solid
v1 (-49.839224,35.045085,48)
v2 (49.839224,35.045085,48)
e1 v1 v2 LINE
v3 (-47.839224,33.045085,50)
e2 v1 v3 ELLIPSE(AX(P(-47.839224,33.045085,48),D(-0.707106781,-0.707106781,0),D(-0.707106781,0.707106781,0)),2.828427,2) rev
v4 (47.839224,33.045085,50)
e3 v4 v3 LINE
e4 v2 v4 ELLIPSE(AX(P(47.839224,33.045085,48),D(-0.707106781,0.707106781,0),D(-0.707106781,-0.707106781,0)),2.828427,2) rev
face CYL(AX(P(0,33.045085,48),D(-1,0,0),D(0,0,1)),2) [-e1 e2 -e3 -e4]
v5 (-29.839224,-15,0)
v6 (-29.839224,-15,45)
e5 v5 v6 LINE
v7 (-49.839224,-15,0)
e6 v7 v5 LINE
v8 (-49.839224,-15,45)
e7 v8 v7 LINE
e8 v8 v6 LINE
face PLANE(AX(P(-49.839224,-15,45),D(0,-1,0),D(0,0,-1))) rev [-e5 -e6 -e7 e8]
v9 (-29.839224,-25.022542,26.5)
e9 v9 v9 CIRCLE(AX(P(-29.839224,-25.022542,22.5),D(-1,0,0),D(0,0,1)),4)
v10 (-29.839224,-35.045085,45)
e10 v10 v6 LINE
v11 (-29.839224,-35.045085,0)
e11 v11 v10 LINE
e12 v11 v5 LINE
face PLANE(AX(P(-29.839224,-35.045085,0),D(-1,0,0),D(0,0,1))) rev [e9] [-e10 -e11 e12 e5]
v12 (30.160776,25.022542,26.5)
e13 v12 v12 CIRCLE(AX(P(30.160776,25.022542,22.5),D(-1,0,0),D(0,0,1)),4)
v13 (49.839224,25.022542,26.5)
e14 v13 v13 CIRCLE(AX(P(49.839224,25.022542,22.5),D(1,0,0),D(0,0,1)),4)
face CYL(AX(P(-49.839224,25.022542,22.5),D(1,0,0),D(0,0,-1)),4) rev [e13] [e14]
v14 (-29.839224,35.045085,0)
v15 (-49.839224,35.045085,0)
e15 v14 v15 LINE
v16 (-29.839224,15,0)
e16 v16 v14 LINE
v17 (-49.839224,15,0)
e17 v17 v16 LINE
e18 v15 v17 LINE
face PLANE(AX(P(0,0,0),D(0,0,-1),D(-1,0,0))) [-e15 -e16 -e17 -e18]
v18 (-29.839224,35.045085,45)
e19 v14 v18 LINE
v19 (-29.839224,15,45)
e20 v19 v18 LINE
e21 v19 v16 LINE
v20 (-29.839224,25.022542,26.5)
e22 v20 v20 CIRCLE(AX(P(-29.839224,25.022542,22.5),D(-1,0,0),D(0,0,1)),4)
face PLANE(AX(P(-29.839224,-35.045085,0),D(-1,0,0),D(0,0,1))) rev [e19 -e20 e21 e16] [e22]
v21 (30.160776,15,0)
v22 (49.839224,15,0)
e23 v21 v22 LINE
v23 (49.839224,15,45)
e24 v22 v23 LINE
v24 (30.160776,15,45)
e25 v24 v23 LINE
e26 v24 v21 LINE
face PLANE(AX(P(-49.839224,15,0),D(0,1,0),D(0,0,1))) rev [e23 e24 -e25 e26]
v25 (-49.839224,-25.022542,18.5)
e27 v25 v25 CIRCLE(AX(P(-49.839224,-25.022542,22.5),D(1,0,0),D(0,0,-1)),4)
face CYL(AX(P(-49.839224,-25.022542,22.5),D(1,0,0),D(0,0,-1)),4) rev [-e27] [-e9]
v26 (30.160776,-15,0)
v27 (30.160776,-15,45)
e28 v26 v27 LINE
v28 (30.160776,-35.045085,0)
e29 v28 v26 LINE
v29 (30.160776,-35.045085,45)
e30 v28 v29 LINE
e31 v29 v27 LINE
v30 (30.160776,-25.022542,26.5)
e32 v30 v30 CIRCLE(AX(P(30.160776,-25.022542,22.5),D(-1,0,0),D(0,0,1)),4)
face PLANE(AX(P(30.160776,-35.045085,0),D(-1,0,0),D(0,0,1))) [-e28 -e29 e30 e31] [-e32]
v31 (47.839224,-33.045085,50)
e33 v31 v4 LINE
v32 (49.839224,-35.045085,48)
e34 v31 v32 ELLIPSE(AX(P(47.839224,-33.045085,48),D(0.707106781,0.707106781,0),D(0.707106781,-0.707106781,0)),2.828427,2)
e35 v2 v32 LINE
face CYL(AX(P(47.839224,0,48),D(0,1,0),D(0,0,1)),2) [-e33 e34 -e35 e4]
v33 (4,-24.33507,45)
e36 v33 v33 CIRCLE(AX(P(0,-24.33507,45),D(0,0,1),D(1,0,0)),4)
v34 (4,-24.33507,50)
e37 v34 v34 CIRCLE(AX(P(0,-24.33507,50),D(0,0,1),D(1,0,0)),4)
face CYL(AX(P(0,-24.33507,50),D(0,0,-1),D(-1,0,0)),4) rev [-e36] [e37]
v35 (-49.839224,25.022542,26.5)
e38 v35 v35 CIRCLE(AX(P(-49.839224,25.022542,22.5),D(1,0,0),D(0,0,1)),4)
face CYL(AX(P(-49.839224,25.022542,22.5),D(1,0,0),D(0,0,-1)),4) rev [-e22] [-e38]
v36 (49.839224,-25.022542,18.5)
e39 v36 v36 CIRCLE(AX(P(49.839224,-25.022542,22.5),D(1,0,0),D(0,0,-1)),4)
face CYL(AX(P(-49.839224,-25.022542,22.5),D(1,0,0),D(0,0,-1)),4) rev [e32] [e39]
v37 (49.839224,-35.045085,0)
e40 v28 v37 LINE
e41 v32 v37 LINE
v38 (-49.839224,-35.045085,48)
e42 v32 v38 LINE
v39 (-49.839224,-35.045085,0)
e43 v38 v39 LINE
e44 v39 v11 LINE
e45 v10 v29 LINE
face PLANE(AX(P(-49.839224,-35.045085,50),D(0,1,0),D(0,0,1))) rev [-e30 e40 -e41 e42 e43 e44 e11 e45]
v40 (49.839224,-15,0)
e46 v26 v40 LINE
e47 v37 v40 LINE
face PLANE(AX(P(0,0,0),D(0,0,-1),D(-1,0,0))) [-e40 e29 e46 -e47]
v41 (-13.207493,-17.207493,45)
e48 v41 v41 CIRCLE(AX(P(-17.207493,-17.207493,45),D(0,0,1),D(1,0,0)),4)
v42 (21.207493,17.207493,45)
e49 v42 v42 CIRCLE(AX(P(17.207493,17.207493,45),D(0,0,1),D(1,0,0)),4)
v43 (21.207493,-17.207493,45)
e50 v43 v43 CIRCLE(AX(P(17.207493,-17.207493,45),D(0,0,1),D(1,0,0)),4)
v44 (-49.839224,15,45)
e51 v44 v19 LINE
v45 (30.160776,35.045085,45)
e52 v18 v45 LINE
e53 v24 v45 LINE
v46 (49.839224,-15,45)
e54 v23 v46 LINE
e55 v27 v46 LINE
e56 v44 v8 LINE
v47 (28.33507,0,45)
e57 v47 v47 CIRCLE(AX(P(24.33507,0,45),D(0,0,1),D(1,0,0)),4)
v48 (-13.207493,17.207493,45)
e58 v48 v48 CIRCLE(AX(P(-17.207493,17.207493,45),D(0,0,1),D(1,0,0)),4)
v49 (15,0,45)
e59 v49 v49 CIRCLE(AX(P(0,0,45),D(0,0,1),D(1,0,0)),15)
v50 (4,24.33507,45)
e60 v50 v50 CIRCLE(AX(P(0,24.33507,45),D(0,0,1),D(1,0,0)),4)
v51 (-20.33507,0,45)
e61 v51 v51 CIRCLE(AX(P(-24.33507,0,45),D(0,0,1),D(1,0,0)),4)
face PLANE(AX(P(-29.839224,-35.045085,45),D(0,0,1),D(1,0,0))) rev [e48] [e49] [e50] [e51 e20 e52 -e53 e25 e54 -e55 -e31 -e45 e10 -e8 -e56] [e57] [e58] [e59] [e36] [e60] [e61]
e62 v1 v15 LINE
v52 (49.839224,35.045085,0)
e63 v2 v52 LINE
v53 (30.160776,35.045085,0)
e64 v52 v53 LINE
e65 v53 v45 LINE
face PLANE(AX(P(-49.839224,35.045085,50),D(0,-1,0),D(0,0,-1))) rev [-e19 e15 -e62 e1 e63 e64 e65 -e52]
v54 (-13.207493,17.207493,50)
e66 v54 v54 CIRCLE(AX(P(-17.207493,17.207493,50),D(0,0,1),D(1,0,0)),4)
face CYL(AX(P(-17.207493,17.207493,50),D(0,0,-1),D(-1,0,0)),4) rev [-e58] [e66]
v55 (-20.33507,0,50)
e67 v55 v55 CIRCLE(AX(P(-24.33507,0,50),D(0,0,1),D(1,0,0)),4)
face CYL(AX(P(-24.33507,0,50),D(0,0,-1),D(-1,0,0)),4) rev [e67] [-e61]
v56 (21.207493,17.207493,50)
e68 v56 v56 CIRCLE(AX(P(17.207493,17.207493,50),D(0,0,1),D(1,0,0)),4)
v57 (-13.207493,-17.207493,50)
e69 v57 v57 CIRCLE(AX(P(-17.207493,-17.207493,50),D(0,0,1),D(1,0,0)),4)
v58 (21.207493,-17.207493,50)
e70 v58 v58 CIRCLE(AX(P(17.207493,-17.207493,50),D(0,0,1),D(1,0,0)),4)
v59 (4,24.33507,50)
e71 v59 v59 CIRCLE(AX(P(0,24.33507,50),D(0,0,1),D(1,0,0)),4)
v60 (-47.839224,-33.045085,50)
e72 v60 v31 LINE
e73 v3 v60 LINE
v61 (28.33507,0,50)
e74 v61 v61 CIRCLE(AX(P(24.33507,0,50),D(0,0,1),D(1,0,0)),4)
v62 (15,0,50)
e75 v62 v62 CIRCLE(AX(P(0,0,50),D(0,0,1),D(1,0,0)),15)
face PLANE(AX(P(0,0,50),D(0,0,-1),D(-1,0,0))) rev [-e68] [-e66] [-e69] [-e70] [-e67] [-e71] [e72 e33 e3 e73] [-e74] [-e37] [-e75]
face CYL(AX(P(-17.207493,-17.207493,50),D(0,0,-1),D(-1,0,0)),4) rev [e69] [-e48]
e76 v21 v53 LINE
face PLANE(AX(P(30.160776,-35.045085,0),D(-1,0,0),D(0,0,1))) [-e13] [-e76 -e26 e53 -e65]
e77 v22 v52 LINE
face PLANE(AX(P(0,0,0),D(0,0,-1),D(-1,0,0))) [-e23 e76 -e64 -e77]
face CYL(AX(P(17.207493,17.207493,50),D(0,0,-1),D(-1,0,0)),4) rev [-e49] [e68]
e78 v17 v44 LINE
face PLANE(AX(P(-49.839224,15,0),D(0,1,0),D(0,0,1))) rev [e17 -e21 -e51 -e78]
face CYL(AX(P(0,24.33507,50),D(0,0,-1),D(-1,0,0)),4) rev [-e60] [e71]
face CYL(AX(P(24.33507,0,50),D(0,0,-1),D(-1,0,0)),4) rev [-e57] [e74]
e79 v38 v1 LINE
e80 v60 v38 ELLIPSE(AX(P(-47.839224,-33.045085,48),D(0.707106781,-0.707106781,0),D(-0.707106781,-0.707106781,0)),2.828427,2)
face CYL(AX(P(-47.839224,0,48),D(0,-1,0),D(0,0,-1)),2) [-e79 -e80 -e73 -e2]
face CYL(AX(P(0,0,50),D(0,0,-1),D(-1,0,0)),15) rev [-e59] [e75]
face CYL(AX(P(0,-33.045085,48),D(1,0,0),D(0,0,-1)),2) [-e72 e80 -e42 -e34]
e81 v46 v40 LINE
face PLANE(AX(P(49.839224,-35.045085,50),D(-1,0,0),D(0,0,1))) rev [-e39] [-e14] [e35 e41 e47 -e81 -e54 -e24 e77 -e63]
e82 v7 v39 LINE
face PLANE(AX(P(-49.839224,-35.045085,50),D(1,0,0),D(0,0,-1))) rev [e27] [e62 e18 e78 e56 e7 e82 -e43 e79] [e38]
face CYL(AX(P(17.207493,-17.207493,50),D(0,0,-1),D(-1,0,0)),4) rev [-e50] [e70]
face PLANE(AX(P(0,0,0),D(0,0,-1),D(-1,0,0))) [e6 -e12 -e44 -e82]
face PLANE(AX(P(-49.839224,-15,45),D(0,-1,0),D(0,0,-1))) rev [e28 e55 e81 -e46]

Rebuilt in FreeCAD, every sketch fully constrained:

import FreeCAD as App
import Part
import Sketcher

V = App.Vector


def edges_at(feature, points):
    """Names of the edges that pass closest to the given points."""
    edges = feature.Shape.Edges
    near = lambda p: min(range(len(edges)), key=lambda i: edges[i].distToShape(Part.Vertex(*p))[0])
    return sorted({f"Edge{near(p) + 1}" for p in points})

doc = App.newDocument("Part")
body = doc.addObject("PartDesign::Body", "Body")

sketch1 = doc.addObject("Sketcher::SketchObject", "Sketch")
body.addObject(sketch1)
sketch1.AttachmentSupport = (doc.XY_Plane, [""])
sketch1.MapMode = "FlatFace"
sketch1.addGeometry([
    Part.LineSegment(V(-49.8, 35, 0), V(-49.8, -35, 0)),
    Part.LineSegment(V(-49.8, -35, 0), V(49.8, -35, 0)),
    Part.LineSegment(V(49.8, -35, 0), V(49.8, 35, 0)),
    Part.LineSegment(V(49.8, 35, 0), V(-49.8, 35, 0)),
    Part.Circle(V(-17.2, -17.2, 0), V(0, 0, 1), 4),
    Part.Circle(V(0, -24.3, 0), V(0, 0, 1), 4),
    Part.Circle(V(17.2, -17.2, 0), V(0, 0, 1), 4),
    Part.Circle(V(-24.3, 0, 0), V(0, 0, 1), 4),
    Part.Circle(V(-17.2, 17.2, 0), V(0, 0, 1), 4),
    Part.Circle(V(0, 0, 0), V(0, 0, 1), 15),
    Part.Circle(V(24.3, 0, 0), V(0, 0, 1), 4),
    Part.Circle(V(0, 24.3, 0), V(0, 0, 1), 4),
    Part.Circle(V(17.2, 17.2, 0), V(0, 0, 1), 4),
], False)
sketch1.addConstraint([
    Sketcher.Constraint("Coincident", 0, 2, 1, 1),
    Sketcher.Constraint("Coincident", 1, 2, 2, 1),
    Sketcher.Constraint("Coincident", 2, 2, 3, 1),
    Sketcher.Constraint("Coincident", 3, 2, 0, 1),
    Sketcher.Constraint("Vertical", 0),
    Sketcher.Constraint("Horizontal", 1),
    Sketcher.Constraint("Vertical", 2),
    Sketcher.Constraint("Horizontal", 3),
    Sketcher.Constraint("Coincident", 9, 3, -1, 1),
    Sketcher.Constraint("Equal", 4, 5),
    Sketcher.Constraint("Equal", 5, 6),
    Sketcher.Constraint("Equal", 6, 7),
    Sketcher.Constraint("Equal", 7, 8),
    Sketcher.Constraint("Equal", 8, 10),
    Sketcher.Constraint("Equal", 10, 11),
    Sketcher.Constraint("Equal", 11, 12),
    Sketcher.Constraint("Symmetric", 6, 3, 8, 3, -1, 1),
    Sketcher.Constraint("Symmetric", 7, 3, 10, 3, -1, 1),
    Sketcher.Constraint("Symmetric", 5, 3, 11, 3, -1, 1),
    Sketcher.Constraint("Symmetric", 4, 3, 12, 3, -1, 1),
    Sketcher.Constraint("Symmetric", 0, 2, 2, 2, -1, 1),
    Sketcher.Constraint("Symmetric", 4, 3, 6, 3, -2),
    Sketcher.Constraint("PointOnObject", 5, 3, -2),
    Sketcher.Constraint("PointOnObject", 7, 3, -1),
    Sketcher.Constraint("Diameter", 4, 8.0),
    Sketcher.Constraint("Diameter", 9, 30.0),
    Sketcher.Constraint("DistanceX", 1, 1, 1, 2, 99.678449),
    Sketcher.Constraint("DistanceY", 0, 2, 0, 1, 70.090169),
    Sketcher.Constraint("DistanceY", 5, 3, -1, 1, 24.33507),
    Sketcher.Constraint("DistanceX", 7, 3, -1, 1, 24.33507),
    Sketcher.Constraint("DistanceX", 0, 2, 4, 3, 32.631731),
    Sketcher.Constraint("DistanceY", 0, 2, 4, 3, 17.837591),
])
pad1 = doc.addObject("PartDesign::Pad", "Pad")
body.addObject(pad1)
pad1.Profile = sketch1
pad1.Length = 50

sketch2 = doc.addObject("Sketcher::SketchObject", "Sketch001")
body.addObject(sketch2)
sketch2.AttachmentSupport = (doc.XZ_Plane, [""])
sketch2.MapMode = "FlatFace"
sketch2.addGeometry([
    Part.LineSegment(V(-30, 0, 0), V(-30, 45, 0)),
    Part.LineSegment(V(-30, 45, 0), V(30, 45, 0)),
    Part.LineSegment(V(30, 45, 0), V(30, 0, 0)),
    Part.LineSegment(V(30, 0, 0), V(-30, 0, 0)),
], False)
sketch2.addConstraint([
    Sketcher.Constraint("Coincident", 0, 2, 1, 1),
    Sketcher.Constraint("Coincident", 1, 2, 2, 1),
    Sketcher.Constraint("Coincident", 2, 2, 3, 1),
    Sketcher.Constraint("Coincident", 3, 2, 0, 1),
    Sketcher.Constraint("Vertical", 0),
    Sketcher.Constraint("Horizontal", 1),
    Sketcher.Constraint("Vertical", 2),
    Sketcher.Constraint("Horizontal", 3),
    Sketcher.Constraint("PointOnObject", 2, 2, -1),
    Sketcher.Constraint("DistanceX", 1, 1, 1, 2, 60.0),
    Sketcher.Constraint("DistanceY", 0, 1, 0, 2, 45.0),
    Sketcher.Constraint("DistanceX", 0, 2, -1, 1, 29.839224),
])
pocket1 = doc.addObject("PartDesign::Pocket", "Pocket")
body.addObject(pocket1)
pocket1.Profile = sketch2
pocket1.Type = "ThroughAll"
pocket1.Midplane = True

sketch3 = doc.addObject("Sketcher::SketchObject", "Sketch002")
body.addObject(sketch3)
sketch3.AttachmentSupport = (doc.YZ_Plane, [""])
sketch3.MapMode = "FlatFace"
sketch3.addGeometry([
    Part.LineSegment(V(15, 0, 0), V(15, 45, 0)),
    Part.LineSegment(V(15, 45, 0), V(-15, 45, 0)),
    Part.LineSegment(V(-15, 45, 0), V(-15, 0, 0)),
    Part.LineSegment(V(-15, 0, 0), V(15, 0, 0)),
], False)
sketch3.addConstraint([
    Sketcher.Constraint("Coincident", 0, 2, 1, 1),
    Sketcher.Constraint("Coincident", 1, 2, 2, 1),
    Sketcher.Constraint("Coincident", 2, 2, 3, 1),
    Sketcher.Constraint("Coincident", 3, 2, 0, 1),
    Sketcher.Constraint("Vertical", 0),
    Sketcher.Constraint("Horizontal", 1),
    Sketcher.Constraint("Vertical", 2),
    Sketcher.Constraint("Horizontal", 3),
    Sketcher.Constraint("Symmetric", 2, 2, 3, 2, -1, 1),
    Sketcher.Constraint("DistanceX", 1, 2, 1, 1, 30.0),
    Sketcher.Constraint("DistanceY", 0, 1, 0, 2, 45.0),
])
pocket2 = doc.addObject("PartDesign::Pocket", "Pocket001")
body.addObject(pocket2)
pocket2.Profile = sketch3
pocket2.Type = "ThroughAll"
pocket2.Midplane = True

sketch4 = doc.addObject("Sketcher::SketchObject", "Sketch003")
body.addObject(sketch4)
sketch4.AttachmentSupport = (doc.YZ_Plane, [""])
sketch4.MapMode = "FlatFace"
sketch4.addGeometry([
    Part.Circle(V(-25, 22.5, 0), V(0, 0, 1), 4),
    Part.Circle(V(25, 22.5, 0), V(0, 0, 1), 4),
], False)
sketch4.addConstraint([
    Sketcher.Constraint("Equal", 0, 1),
    Sketcher.Constraint("Symmetric", 0, 3, 1, 3, -2),
    Sketcher.Constraint("Diameter", 0, 8.0),
    Sketcher.Constraint("DistanceY", -1, 1, 0, 3, 22.5),
    Sketcher.Constraint("DistanceX", 0, 3, -1, 1, 25.022542),
])
pocket3 = doc.addObject("PartDesign::Pocket", "Pocket002")
body.addObject(pocket3)
pocket3.Profile = sketch4
pocket3.Type = "ThroughAll"
pocket3.Midplane = True
doc.recompute()

fillet = doc.addObject("PartDesign::Fillet", "Fillet")
body.addObject(fillet)
fillet.Base = (pocket3, edges_at(pocket3, [
    (-49.839, 0, 50),
    (0, -35.045, 50),
    (49.839, 0, 50),
    (0, 35.045, 50),
]))
fillet.Radius = 2

doc.recompute()
